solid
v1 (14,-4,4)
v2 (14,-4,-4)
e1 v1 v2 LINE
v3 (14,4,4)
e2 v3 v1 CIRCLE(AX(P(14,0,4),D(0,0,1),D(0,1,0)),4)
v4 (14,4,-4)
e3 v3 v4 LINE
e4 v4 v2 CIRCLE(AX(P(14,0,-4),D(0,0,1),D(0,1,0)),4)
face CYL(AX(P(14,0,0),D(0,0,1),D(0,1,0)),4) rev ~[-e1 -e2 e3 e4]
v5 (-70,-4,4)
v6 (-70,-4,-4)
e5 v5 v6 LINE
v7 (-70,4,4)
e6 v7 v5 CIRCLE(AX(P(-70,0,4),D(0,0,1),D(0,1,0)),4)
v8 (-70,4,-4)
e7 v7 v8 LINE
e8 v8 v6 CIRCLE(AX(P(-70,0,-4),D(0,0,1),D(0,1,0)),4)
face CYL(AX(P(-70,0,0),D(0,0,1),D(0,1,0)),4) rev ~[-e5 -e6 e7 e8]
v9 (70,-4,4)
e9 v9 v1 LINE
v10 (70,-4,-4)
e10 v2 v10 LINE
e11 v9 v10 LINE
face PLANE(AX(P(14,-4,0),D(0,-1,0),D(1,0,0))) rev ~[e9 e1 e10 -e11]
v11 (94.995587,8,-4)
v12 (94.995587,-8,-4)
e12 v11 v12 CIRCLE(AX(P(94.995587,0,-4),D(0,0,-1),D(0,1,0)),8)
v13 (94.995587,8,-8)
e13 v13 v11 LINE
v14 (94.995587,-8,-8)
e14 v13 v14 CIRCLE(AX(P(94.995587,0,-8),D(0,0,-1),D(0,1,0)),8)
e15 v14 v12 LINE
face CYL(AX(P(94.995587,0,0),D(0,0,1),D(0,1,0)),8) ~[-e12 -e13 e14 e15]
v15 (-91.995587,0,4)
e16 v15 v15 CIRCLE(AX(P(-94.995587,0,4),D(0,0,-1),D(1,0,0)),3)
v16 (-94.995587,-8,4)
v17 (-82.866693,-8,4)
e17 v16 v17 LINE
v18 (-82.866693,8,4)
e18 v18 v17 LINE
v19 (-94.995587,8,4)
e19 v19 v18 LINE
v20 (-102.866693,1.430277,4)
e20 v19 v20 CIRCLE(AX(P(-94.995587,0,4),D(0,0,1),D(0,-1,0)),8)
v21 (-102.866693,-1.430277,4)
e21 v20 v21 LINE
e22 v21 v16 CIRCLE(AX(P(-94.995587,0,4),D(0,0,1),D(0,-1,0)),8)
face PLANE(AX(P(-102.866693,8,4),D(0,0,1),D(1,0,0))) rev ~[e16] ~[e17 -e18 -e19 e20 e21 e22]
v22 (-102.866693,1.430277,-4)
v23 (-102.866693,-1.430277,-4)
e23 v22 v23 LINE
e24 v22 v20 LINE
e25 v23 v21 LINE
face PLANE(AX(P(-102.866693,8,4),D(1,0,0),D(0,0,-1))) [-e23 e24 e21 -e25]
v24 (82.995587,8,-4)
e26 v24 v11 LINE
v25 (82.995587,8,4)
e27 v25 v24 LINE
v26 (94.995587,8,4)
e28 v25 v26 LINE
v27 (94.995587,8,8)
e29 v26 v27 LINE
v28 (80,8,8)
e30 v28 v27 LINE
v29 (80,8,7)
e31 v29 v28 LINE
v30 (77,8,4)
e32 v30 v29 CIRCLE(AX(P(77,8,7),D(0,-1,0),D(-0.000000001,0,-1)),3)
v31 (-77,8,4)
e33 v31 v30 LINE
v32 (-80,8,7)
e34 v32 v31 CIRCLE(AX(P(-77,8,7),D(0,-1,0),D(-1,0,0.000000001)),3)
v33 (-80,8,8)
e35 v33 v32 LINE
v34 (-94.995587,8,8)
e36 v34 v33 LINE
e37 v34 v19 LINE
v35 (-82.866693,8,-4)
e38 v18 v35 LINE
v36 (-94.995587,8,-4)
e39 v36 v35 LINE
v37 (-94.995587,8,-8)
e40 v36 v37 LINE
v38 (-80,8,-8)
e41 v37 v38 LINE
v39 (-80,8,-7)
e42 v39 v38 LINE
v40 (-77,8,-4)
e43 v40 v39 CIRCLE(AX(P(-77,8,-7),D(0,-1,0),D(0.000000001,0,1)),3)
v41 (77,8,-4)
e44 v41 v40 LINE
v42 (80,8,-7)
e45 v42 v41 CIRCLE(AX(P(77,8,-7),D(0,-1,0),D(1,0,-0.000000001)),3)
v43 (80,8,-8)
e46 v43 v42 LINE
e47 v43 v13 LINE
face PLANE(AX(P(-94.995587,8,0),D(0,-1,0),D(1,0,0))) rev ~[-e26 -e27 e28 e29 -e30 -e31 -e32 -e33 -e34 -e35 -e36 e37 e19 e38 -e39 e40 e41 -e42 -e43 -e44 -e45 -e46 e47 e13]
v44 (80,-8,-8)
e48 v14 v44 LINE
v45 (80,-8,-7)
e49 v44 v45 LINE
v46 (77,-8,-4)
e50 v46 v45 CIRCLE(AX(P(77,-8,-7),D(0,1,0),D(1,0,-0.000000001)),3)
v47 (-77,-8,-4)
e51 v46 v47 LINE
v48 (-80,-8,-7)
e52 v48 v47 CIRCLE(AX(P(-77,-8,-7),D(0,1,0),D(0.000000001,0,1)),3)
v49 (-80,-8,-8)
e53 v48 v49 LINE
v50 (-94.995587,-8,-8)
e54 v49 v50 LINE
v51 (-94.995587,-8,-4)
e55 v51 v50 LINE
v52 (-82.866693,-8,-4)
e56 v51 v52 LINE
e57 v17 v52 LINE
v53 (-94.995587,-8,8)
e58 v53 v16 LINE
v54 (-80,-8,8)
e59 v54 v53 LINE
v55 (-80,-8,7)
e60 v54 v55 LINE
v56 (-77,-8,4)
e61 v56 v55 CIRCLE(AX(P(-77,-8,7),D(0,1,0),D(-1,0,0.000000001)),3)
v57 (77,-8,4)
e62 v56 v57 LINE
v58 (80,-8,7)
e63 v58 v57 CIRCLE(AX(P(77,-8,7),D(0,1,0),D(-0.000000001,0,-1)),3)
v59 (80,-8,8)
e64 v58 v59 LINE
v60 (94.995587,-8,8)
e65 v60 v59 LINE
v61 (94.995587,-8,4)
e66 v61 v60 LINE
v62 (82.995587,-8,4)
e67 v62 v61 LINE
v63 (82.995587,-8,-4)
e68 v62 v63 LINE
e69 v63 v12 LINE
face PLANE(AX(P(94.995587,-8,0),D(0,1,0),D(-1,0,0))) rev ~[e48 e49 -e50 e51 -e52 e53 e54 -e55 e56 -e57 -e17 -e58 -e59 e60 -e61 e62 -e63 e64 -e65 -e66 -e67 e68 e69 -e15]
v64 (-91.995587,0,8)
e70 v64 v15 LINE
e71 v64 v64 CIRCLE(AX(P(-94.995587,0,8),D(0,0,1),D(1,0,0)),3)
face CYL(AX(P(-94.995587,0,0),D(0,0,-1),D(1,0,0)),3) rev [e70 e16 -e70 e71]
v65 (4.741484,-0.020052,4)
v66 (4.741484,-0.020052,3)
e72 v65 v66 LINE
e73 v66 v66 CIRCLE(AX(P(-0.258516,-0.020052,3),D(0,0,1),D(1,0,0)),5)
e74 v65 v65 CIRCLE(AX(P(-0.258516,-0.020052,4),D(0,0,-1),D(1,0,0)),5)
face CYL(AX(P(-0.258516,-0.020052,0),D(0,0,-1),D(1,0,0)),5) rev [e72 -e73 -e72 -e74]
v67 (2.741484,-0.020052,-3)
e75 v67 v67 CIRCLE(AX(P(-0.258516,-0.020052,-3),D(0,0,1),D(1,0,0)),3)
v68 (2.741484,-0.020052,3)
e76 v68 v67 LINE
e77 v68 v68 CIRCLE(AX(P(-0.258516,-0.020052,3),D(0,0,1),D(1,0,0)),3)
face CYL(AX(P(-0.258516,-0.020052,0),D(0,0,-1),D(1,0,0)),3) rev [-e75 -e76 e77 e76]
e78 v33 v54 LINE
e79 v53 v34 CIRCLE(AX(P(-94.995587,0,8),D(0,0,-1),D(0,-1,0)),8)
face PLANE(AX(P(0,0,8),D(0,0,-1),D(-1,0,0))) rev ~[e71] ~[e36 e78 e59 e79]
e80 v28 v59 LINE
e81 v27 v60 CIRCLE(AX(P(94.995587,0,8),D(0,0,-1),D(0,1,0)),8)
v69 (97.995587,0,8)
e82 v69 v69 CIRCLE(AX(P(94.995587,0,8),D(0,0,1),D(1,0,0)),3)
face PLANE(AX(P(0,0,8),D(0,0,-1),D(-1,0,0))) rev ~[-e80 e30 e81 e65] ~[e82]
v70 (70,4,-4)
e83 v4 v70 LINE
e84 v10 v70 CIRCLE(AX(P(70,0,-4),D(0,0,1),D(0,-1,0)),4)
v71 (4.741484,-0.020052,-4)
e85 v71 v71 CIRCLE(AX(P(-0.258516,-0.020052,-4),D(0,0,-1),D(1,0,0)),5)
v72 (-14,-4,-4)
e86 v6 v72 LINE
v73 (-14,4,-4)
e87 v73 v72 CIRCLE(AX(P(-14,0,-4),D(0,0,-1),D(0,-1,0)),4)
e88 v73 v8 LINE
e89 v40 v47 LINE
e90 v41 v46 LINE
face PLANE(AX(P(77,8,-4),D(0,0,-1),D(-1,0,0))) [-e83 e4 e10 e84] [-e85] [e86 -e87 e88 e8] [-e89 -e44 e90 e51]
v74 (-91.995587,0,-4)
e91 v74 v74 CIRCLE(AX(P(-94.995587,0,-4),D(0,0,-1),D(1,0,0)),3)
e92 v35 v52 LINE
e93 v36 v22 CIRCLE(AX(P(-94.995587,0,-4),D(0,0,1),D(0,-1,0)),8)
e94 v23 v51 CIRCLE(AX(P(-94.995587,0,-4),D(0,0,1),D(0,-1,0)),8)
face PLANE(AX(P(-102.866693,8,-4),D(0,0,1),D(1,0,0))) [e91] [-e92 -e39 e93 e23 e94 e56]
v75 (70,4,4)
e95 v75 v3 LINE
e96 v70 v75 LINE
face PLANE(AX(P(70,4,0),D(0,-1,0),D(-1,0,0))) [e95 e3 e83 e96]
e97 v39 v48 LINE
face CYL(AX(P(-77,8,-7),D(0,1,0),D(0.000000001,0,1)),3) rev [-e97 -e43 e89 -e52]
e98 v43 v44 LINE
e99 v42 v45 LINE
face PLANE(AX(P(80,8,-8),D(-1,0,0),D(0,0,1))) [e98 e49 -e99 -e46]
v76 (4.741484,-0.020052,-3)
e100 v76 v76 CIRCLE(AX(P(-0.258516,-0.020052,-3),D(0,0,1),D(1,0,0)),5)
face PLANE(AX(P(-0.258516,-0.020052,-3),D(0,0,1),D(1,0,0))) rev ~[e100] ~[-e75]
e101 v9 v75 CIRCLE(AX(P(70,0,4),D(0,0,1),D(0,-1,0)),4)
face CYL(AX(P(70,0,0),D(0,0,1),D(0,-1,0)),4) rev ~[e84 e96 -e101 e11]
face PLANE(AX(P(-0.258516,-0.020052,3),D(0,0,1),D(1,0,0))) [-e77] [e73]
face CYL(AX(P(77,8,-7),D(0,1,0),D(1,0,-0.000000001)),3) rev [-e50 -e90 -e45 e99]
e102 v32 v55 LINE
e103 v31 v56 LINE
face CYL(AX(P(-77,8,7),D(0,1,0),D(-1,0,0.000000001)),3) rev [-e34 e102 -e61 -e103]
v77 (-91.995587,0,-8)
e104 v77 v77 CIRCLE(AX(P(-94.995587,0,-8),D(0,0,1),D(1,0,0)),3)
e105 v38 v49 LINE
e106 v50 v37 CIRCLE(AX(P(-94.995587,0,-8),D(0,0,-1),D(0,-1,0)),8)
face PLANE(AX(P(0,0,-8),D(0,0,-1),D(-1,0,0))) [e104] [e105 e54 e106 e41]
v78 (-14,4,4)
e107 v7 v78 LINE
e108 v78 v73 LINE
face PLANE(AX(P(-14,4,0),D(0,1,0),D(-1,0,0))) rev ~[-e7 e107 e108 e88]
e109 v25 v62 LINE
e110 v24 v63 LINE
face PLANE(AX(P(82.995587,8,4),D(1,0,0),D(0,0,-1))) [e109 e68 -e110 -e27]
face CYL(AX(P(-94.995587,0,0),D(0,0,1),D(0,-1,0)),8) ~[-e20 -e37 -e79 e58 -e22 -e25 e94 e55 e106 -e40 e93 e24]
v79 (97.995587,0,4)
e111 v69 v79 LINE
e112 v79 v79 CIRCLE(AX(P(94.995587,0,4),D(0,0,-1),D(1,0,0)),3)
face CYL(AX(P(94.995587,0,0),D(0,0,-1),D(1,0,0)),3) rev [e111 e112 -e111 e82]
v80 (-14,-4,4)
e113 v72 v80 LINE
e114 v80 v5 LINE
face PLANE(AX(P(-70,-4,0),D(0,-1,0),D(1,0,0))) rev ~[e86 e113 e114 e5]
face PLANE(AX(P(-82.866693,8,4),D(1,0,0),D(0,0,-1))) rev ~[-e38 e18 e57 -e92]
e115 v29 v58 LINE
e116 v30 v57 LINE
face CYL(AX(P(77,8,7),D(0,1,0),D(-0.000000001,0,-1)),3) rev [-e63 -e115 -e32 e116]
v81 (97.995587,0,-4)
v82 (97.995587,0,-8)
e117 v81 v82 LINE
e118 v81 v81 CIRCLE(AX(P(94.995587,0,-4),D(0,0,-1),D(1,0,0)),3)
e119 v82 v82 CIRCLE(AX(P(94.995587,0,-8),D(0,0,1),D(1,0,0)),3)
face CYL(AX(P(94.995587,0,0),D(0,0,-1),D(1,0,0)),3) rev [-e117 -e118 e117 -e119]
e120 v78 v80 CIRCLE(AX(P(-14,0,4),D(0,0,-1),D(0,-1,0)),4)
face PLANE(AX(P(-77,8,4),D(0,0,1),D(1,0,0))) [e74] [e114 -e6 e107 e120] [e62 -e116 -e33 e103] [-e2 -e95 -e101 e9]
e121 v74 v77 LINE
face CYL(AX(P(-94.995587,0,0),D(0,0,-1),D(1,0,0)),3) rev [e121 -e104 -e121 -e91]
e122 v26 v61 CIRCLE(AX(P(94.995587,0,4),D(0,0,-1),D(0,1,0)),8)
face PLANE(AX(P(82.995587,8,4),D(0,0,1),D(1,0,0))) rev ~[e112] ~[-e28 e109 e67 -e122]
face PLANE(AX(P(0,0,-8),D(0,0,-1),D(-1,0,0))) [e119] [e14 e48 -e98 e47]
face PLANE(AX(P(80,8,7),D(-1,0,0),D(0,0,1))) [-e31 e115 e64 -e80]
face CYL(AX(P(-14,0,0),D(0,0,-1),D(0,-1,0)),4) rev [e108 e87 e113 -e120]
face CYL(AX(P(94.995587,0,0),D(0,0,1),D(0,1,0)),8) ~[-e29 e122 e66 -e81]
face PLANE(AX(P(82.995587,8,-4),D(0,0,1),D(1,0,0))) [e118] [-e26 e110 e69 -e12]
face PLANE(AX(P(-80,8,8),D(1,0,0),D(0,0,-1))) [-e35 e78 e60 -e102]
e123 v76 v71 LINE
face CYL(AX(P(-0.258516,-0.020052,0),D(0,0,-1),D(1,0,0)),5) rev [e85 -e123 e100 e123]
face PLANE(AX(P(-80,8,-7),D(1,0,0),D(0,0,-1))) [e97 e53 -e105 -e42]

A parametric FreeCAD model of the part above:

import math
import FreeCAD as App
import Part
import Sketcher

doc = App.newDocument("Part")
body = doc.addObject("PartDesign::Body", "Body")

sketch1 = doc.addObject("Sketcher::SketchObject", "Sketch")
body.addObject(sketch1)
sketch1.AttachmentSupport = (doc.XY_Plane, [""])
sketch1.MapMode = "FlatFace"
sketch1.addGeometry([
    Part.LineSegment(App.Vector(-94.995587, -8, 0), App.Vector(94.995587, -8, 0)),
    Part.ArcOfCircle(Part.Circle(App.Vector(94.995587, 0, 0), App.Vector(0, 0, 1), 8), math.radians(-90), math.radians(90)),
    Part.LineSegment(App.Vector(94.995587, 8, 0), App.Vector(-94.995587, 8, 0)),
    Part.ArcOfCircle(Part.Circle(App.Vector(-94.995587, 0, 0), App.Vector(0, 0, 1), 8), math.radians(90), math.radians(270)),
    Part.Circle(App.Vector(94.995587, 0, 0), App.Vector(0, 0, 1), 3),
    Part.LineSegment(App.Vector(70, -4, 0), App.Vector(14, -4, 0)),
    Part.ArcOfCircle(Part.Circle(App.Vector(14, 0, 0), App.Vector(0, 0, 1), 4), math.radians(90), math.radians(270)),
    Part.LineSegment(App.Vector(14, 4, 0), App.Vector(70, 4, 0)),
    Part.ArcOfCircle(Part.Circle(App.Vector(70, 0, 0), App.Vector(0, 0, 1), 4), math.radians(-90), math.radians(90)),
    Part.Circle(App.Vector(-0.258516, -0.020052, 0), App.Vector(0, 0, 1), 5),
    Part.LineSegment(App.Vector(-14, -4, 0), App.Vector(-70, -4, 0)),
    Part.ArcOfCircle(Part.Circle(App.Vector(-70, 0, 0), App.Vector(0, 0, 1), 4), math.radians(90), math.radians(270)),
    Part.LineSegment(App.Vector(-70, 4, 0), App.Vector(-14, 4, 0)),
    Part.ArcOfCircle(Part.Circle(App.Vector(-14, 0, 0), App.Vector(0, 0, 1), 4), math.radians(-90), math.radians(90)),
    Part.Circle(App.Vector(-94.995587, 0, 0), App.Vector(0, 0, 1), 3),
], False)
sketch1.addConstraint([
    Sketcher.Constraint("Tangent", 0, 2, 1, 1),
    Sketcher.Constraint("Tangent", 1, 2, 2, 1),
    Sketcher.Constraint("Tangent", 2, 2, 3, 1),
    Sketcher.Constraint("Tangent", 3, 2, 0, 1),
    Sketcher.Constraint("Tangent", 5, 2, 6, 2),
    Sketcher.Constraint("Tangent", 6, 1, 7, 1),
    Sketcher.Constraint("Tangent", 7, 2, 8, 2),
    Sketcher.Constraint("Tangent", 8, 1, 5, 1),
    Sketcher.Constraint("Tangent", 10, 2, 11, 2),
    Sketcher.Constraint("Tangent", 11, 1, 12, 1),
    Sketcher.Constraint("Tangent", 12, 2, 13, 2),
    Sketcher.Constraint("Tangent", 13, 1, 10, 1),
    Sketcher.Constraint("Horizontal", 0),
    Sketcher.Constraint("Horizontal", 2),
    Sketcher.Constraint("Horizontal", 5),
    Sketcher.Constraint("Horizontal", 7),
    Sketcher.Constraint("Horizontal", 10),
    Sketcher.Constraint("Horizontal", 12),
    Sketcher.Constraint("Coincident", 4, 3, 1, 3),
    Sketcher.Constraint("Coincident", 14, 3, 3, 3),
    Sketcher.Constraint("Equal", 8, 11),
    Sketcher.Constraint("Equal", 4, 14),
    Sketcher.Constraint("Symmetric", 1, 3, 3, 3, -1, 1),
    Sketcher.Constraint("Symmetric", 8, 3, 11, 3, -1, 1),
    Sketcher.Constraint("Symmetric", 6, 3, 13, 3, -2),
    Sketcher.Constraint("Diameter", 4, 6.0),
    Sketcher.Constraint("Diameter", 9, 10.0),
    Sketcher.Constraint("Radius", 1, 8.0),
    Sketcher.Constraint("Radius", 6, 4.0),
    Sketcher.Constraint("DistanceX", 5, 2, 5, 1, 56.0),
    Sketcher.Constraint("DistanceX", -1, 1, 6, 3, 14.0),
    Sketcher.Constraint("DistanceX", 0, 1, 0, 2, 189.991174),
    Sketcher.Constraint("DistanceX", 3, 3, 9, 3, 94.737071),
    Sketcher.Constraint("DistanceY", 9, 3, -1, 1, 0.020052),
])
pad1 = doc.addObject("PartDesign::Pad", "Pad")
body.addObject(pad1)
pad1.Profile = sketch1
pad1.Length = 16
pad1.Midplane = True

sketch2 = doc.addObject("Sketcher::SketchObject", "Sketch001")
body.addObject(sketch2)
sketch2.AttachmentSupport = (doc.XY_Plane, [""])
sketch2.MapMode = "FlatFace"
sketch2.addGeometry([
    Part.Circle(App.Vector(-0.258516, -0.020052, 0), App.Vector(0, 0, 1), 5),
    Part.Circle(App.Vector(-0.258516, -0.020052, 0), App.Vector(0, 0, 1), 3),
], False)
sketch2.addConstraint([
    Sketcher.Constraint("Coincident", 1, 3, 0, 3),
    Sketcher.Constraint("Diameter", 0, 10.0),
    Sketcher.Constraint("Diameter", 1, 6.0),
    Sketcher.Constraint("DistanceX", 0, 3, -1, 1, 0.258516),
    Sketcher.Constraint("DistanceY", 0, 3, -1, 1, 0.020052),
])
pad2 = doc.addObject("PartDesign::Pad", "Pad001")
body.addObject(pad2)
pad2.Profile = sketch2
pad2.Length = 6
pad2.Midplane = True

sketch3 = doc.addObject("Sketcher::SketchObject", "Sketch002")
body.addObject(sketch3)
sketch3.AttachmentSupport = (doc.XZ_Plane, [""])
sketch3.MapMode = "FlatFace"
sketch3.AttachmentOffset = App.Placement(App.Vector(0, 0, -8), App.Rotation())
sketch3.addGeometry([
    Part.LineSegment(App.Vector(80, -8, 0), App.Vector(-80, -8, 0)),
    Part.LineSegment(App.Vector(-80, -8, 0), App.Vector(-80, -7, 0)),
    Part.ArcOfCircle(Part.Circle(App.Vector(-77, -7, 0), App.Vector(0, 0, 1), 3), math.radians(90), math.radians(180)),
    Part.LineSegment(App.Vector(-77, -4, 0), App.Vector(77, -4, 0)),
    Part.ArcOfCircle(Part.Circle(App.Vector(77, -7, 0), App.Vector(0, 0, 1), 3), math.radians(0), math.radians(90)),
    Part.LineSegment(App.Vector(80, -7, 0), App.Vector(80, -8, 0)),
    Part.LineSegment(App.Vector(-80, 8, 0), App.Vector(80, 8, 0)),
    Part.LineSegment(App.Vector(80, 8, 0), App.Vector(80, 7, 0)),
    Part.ArcOfCircle(Part.Circle(App.Vector(77, 7, 0), App.Vector(0, 0, 1), 3), math.radians(-90), math.radians(0)),
    Part.LineSegment(App.Vector(77, 4, 0), App.Vector(-77, 4, 0)),
    Part.ArcOfCircle(Part.Circle(App.Vector(-77, 7, 0), App.Vector(0, 0, 1), 3), math.radians(180), math.radians(270)),
    Part.LineSegment(App.Vector(-80, 7, 0), App.Vector(-80, 8, 0)),
    Part.LineSegment(App.Vector(-102.866693, -4, 0), App.Vector(-102.866693, 4, 0)),
    Part.LineSegment(App.Vector(-102.866693, 4, 0), App.Vector(-82.866693, 4, 0)),
    Part.LineSegment(App.Vector(-82.866693, 4, 0), App.Vector(-82.866693, -4, 0)),
    Part.LineSegment(App.Vector(-82.866693, -4, 0), App.Vector(-102.866693, -4, 0)),
    Part.LineSegment(App.Vector(82.995587, -4, 0), App.Vector(82.995587, 4, 0)),
    Part.LineSegment(App.Vector(82.995587, 4, 0), App.Vector(102.995587, 4, 0)),
    Part.LineSegment(App.Vector(102.995587, 4, 0), App.Vector(102.995587, -4, 0)),
    Part.LineSegment(App.Vector(102.995587, -4, 0), App.Vector(82.995587, -4, 0)),
], False)
sketch3.addConstraint([
    Sketcher.Constraint("Coincident", 0, 2, 1, 1),
    Sketcher.Constraint("Tangent", 1, 2, 2, 2),
    Sketcher.Constraint("Tangent", 2, 1, 3, 1),
    Sketcher.Constraint("Tangent", 3, 2, 4, 2),
    Sketcher.Constraint("Tangent", 4, 1, 5, 1),
    Sketcher.Constraint("Coincident", 5, 2, 0, 1),
    Sketcher.Constraint("Coincident", 6, 2, 7, 1),
    Sketcher.Constraint("Tangent", 7, 2, 8, 2),
    Sketcher.Constraint("Tangent", 8, 1, 9, 1),
    Sketcher.Constraint("Tangent", 9, 2, 10, 2),
    Sketcher.Constraint("Tangent", 10, 1, 11, 1),
    Sketcher.Constraint("Coincident", 11, 2, 6, 1),
    Sketcher.Constraint("Coincident", 12, 2, 13, 1),
    Sketcher.Constraint("Coincident", 13, 2, 14, 1),
    Sketcher.Constraint("Coincident", 14, 2, 15, 1),
    Sketcher.Constraint("Coincident", 15, 2, 12, 1),
    Sketcher.Constraint("Coincident", 16, 2, 17, 1),
    Sketcher.Constraint("Coincident", 17, 2, 18, 1),
    Sketcher.Constraint("Coincident", 18, 2, 19, 1),
    Sketcher.Constraint("Coincident", 19, 2, 16, 1),
    Sketcher.Constraint("Horizontal", 0),
    Sketcher.Constraint("Vertical", 1),
    Sketcher.Constraint("Horizontal", 3),
    Sketcher.Constraint("Vertical", 5),
    Sketcher.Constraint("Horizontal", 6),
    Sketcher.Constraint("Vertical", 7),
    Sketcher.Constraint("Horizontal", 9),
    Sketcher.Constraint("Vertical", 11),
    Sketcher.Constraint("Vertical", 12),
    Sketcher.Constraint("Horizontal", 13),
    Sketcher.Constraint("Vertical", 14),
    Sketcher.Constraint("Horizontal", 15),
    Sketcher.Constraint("Vertical", 16),
    Sketcher.Constraint("Horizontal", 17),
    Sketcher.Constraint("Vertical", 18),
    Sketcher.Constraint("Horizontal", 19),
    Sketcher.Constraint("Equal", 2, 4),
    Sketcher.Constraint("Equal", 4, 8),
    Sketcher.Constraint("Equal", 8, 10),
    Sketcher.Constraint("Symmetric", 2, 3, 8, 3, -1, 1),
    Sketcher.Constraint("Symmetric", 5, 2, 11, 2, -1, 1),
    Sketcher.Constraint("Horizontal", 9, 2, 12, 2),
    Sketcher.Constraint("Horizontal", 3, 2, 14, 2),
    Sketcher.Constraint("Horizontal", 13, 2, 16, 2),
    Sketcher.Constraint("Horizontal", 15, 2, 18, 2),
    Sketcher.Constraint("Vertical", 4, 3, 8, 3),
    Sketcher.Constraint("Equal", 15, 17),
    Sketcher.Constraint("Radius", 2, 3.0),
    Sketcher.Constraint("DistanceX", 0, 2, 0, 1, 160.0),
    Sketcher.Constraint("DistanceX", 13, 1, 13, 2, 20.0),
    Sketcher.Constraint("DistanceY", 1, 1, 1, 2, 1.0),
    Sketcher.Constraint("DistanceY", 12, 1, 12, 2, 8.0),
    Sketcher.Constraint("DistanceX", 12, 2, -1, 1, 102.866693),
    Sketcher.Constraint("DistanceX", -1, 1, 16, 2, 82.995587),
])
pocket1 = doc.addObject("PartDesign::Pocket", "Pocket")
body.addObject(pocket1)
pocket1.Profile = sketch3
pocket1.Type = "ThroughAll"
pocket1.Reversed = True

doc.recompute()
